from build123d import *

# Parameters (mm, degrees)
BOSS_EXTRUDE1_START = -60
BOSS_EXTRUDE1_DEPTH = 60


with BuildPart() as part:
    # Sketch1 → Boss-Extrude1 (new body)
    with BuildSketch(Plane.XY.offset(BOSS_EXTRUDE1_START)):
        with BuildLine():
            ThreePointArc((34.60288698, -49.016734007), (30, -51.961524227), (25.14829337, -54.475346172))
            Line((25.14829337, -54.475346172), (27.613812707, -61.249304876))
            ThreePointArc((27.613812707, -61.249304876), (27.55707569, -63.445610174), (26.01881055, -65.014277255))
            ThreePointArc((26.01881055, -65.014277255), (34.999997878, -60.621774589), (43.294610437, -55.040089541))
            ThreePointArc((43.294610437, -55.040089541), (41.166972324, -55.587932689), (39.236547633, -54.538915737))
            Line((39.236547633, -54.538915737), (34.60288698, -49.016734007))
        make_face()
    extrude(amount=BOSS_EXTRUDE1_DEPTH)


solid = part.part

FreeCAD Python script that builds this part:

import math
import FreeCAD as App
import Part
import Sketcher
from FreeCAD import Vector
Q = App.Units.Quantity

doc = App.newDocument("Part")
body = doc.addObject("PartDesign::Body", "Body")

# Sketch on XY plane
sketch1 = body.newObject("Sketcher::SketchObject", "Sketch")
sketch1.AttachmentSupport = (doc.getObject("XY_Plane"), [""])
sketch1.MapMode = "FlatFace"
sketch1.AttachmentOffset = App.Placement(Vector(0, 0, -60), App.Rotation())
sketch1.addGeometry(Part.ArcOfCircle(Part.Circle(Vector(0, 0, 0), Vector(0, 0, 1), 60), math.radians(-65.22), math.radians(-54.78)), False)
sketch1.addGeometry(Part.LineSegment(Vector(25.1, -54.5, 0), Vector(27.6, -61.2, 0)), False)
sketch1.addGeometry(Part.ArcOfCircle(Part.Circle(Vector(24.8, -62.3, 0), Vector(0, 0, 1), 3), math.radians(-66), math.radians(20)), False)
sketch1.addGeometry(Part.ArcOfCircle(Part.Circle(Vector(-1.4, 2.4, 0), Vector(0, 0, 1), 72.8), math.radians(-67.88), math.radians(-52.12)), False)
sketch1.addGeometry(Part.ArcOfCircle(Part.Circle(Vector(41.5, -52.6, 0), Vector(0, 0, 1), 3), math.radians(-140), math.radians(-54)), False)
sketch1.addGeometry(Part.LineSegment(Vector(39.2, -54.5, 0), Vector(34.6, -49, 0)), False)
sketch1.addConstraint(Sketcher.Constraint("Coincident", 0, 1, 1, 1))
sketch1.addConstraint(Sketcher.Constraint("Tangent", 1, 2, 2, 2))
sketch1.addConstraint(Sketcher.Constraint("Coincident", 2, 1, 3, 1))
sketch1.addConstraint(Sketcher.Constraint("Coincident", 3, 2, 4, 2))
sketch1.addConstraint(Sketcher.Constraint("Tangent", 4, 1, 5, 1))
sketch1.addConstraint(Sketcher.Constraint("Coincident", 5, 2, 0, 2))
sketch1.addConstraint(Sketcher.Constraint("Coincident", 0, 3, -1, 1))
sketch1.addConstraint(Sketcher.Constraint("Equal", 2, 4))
sketch1.addConstraint(Sketcher.Constraint("Equal", 1, 5))
sketch1.addConstraint(Sketcher.Constraint("Radius", 0, Q("60 mm")))
sketch1.addConstraint(Sketcher.Constraint("Radius", 2, Q("3 mm")))
sketch1.addConstraint(Sketcher.Constraint("Angle", 1, Q("-70 deg")))
sketch1.addConstraint(Sketcher.Constraint("Angle", 5, Q("130 deg")))
sketch1.addConstraint(Sketcher.Constraint("Radius", 3, Q("72.793096 mm")))
sketch1.addConstraint(Sketcher.Constraint("DistanceY", 1, 2, 3, 3, Q("63.6682 mm")))
sketch1.addConstraint(Sketcher.Constraint("DistanceX", 2, 1, 3, 2, Q("17.2758 mm")))
sketch1.addConstraint(Sketcher.Constraint("DistanceX", 3, 3, -1, 1, Q("1.39655 mm")))
sketch1.addConstraint(Sketcher.Constraint("DistanceX", -1, 1, 4, 3, Q("41.534681 mm")))
sketch1.addConstraint(Sketcher.Constraint("DistanceX", -1, 1, 2, 1, Q("26.018811 mm")))
pad1 = body.newObject("PartDesign::Pad", "Pad")
pad1.Profile = sketch1
pad1.Length = 60

doc.recompute()
